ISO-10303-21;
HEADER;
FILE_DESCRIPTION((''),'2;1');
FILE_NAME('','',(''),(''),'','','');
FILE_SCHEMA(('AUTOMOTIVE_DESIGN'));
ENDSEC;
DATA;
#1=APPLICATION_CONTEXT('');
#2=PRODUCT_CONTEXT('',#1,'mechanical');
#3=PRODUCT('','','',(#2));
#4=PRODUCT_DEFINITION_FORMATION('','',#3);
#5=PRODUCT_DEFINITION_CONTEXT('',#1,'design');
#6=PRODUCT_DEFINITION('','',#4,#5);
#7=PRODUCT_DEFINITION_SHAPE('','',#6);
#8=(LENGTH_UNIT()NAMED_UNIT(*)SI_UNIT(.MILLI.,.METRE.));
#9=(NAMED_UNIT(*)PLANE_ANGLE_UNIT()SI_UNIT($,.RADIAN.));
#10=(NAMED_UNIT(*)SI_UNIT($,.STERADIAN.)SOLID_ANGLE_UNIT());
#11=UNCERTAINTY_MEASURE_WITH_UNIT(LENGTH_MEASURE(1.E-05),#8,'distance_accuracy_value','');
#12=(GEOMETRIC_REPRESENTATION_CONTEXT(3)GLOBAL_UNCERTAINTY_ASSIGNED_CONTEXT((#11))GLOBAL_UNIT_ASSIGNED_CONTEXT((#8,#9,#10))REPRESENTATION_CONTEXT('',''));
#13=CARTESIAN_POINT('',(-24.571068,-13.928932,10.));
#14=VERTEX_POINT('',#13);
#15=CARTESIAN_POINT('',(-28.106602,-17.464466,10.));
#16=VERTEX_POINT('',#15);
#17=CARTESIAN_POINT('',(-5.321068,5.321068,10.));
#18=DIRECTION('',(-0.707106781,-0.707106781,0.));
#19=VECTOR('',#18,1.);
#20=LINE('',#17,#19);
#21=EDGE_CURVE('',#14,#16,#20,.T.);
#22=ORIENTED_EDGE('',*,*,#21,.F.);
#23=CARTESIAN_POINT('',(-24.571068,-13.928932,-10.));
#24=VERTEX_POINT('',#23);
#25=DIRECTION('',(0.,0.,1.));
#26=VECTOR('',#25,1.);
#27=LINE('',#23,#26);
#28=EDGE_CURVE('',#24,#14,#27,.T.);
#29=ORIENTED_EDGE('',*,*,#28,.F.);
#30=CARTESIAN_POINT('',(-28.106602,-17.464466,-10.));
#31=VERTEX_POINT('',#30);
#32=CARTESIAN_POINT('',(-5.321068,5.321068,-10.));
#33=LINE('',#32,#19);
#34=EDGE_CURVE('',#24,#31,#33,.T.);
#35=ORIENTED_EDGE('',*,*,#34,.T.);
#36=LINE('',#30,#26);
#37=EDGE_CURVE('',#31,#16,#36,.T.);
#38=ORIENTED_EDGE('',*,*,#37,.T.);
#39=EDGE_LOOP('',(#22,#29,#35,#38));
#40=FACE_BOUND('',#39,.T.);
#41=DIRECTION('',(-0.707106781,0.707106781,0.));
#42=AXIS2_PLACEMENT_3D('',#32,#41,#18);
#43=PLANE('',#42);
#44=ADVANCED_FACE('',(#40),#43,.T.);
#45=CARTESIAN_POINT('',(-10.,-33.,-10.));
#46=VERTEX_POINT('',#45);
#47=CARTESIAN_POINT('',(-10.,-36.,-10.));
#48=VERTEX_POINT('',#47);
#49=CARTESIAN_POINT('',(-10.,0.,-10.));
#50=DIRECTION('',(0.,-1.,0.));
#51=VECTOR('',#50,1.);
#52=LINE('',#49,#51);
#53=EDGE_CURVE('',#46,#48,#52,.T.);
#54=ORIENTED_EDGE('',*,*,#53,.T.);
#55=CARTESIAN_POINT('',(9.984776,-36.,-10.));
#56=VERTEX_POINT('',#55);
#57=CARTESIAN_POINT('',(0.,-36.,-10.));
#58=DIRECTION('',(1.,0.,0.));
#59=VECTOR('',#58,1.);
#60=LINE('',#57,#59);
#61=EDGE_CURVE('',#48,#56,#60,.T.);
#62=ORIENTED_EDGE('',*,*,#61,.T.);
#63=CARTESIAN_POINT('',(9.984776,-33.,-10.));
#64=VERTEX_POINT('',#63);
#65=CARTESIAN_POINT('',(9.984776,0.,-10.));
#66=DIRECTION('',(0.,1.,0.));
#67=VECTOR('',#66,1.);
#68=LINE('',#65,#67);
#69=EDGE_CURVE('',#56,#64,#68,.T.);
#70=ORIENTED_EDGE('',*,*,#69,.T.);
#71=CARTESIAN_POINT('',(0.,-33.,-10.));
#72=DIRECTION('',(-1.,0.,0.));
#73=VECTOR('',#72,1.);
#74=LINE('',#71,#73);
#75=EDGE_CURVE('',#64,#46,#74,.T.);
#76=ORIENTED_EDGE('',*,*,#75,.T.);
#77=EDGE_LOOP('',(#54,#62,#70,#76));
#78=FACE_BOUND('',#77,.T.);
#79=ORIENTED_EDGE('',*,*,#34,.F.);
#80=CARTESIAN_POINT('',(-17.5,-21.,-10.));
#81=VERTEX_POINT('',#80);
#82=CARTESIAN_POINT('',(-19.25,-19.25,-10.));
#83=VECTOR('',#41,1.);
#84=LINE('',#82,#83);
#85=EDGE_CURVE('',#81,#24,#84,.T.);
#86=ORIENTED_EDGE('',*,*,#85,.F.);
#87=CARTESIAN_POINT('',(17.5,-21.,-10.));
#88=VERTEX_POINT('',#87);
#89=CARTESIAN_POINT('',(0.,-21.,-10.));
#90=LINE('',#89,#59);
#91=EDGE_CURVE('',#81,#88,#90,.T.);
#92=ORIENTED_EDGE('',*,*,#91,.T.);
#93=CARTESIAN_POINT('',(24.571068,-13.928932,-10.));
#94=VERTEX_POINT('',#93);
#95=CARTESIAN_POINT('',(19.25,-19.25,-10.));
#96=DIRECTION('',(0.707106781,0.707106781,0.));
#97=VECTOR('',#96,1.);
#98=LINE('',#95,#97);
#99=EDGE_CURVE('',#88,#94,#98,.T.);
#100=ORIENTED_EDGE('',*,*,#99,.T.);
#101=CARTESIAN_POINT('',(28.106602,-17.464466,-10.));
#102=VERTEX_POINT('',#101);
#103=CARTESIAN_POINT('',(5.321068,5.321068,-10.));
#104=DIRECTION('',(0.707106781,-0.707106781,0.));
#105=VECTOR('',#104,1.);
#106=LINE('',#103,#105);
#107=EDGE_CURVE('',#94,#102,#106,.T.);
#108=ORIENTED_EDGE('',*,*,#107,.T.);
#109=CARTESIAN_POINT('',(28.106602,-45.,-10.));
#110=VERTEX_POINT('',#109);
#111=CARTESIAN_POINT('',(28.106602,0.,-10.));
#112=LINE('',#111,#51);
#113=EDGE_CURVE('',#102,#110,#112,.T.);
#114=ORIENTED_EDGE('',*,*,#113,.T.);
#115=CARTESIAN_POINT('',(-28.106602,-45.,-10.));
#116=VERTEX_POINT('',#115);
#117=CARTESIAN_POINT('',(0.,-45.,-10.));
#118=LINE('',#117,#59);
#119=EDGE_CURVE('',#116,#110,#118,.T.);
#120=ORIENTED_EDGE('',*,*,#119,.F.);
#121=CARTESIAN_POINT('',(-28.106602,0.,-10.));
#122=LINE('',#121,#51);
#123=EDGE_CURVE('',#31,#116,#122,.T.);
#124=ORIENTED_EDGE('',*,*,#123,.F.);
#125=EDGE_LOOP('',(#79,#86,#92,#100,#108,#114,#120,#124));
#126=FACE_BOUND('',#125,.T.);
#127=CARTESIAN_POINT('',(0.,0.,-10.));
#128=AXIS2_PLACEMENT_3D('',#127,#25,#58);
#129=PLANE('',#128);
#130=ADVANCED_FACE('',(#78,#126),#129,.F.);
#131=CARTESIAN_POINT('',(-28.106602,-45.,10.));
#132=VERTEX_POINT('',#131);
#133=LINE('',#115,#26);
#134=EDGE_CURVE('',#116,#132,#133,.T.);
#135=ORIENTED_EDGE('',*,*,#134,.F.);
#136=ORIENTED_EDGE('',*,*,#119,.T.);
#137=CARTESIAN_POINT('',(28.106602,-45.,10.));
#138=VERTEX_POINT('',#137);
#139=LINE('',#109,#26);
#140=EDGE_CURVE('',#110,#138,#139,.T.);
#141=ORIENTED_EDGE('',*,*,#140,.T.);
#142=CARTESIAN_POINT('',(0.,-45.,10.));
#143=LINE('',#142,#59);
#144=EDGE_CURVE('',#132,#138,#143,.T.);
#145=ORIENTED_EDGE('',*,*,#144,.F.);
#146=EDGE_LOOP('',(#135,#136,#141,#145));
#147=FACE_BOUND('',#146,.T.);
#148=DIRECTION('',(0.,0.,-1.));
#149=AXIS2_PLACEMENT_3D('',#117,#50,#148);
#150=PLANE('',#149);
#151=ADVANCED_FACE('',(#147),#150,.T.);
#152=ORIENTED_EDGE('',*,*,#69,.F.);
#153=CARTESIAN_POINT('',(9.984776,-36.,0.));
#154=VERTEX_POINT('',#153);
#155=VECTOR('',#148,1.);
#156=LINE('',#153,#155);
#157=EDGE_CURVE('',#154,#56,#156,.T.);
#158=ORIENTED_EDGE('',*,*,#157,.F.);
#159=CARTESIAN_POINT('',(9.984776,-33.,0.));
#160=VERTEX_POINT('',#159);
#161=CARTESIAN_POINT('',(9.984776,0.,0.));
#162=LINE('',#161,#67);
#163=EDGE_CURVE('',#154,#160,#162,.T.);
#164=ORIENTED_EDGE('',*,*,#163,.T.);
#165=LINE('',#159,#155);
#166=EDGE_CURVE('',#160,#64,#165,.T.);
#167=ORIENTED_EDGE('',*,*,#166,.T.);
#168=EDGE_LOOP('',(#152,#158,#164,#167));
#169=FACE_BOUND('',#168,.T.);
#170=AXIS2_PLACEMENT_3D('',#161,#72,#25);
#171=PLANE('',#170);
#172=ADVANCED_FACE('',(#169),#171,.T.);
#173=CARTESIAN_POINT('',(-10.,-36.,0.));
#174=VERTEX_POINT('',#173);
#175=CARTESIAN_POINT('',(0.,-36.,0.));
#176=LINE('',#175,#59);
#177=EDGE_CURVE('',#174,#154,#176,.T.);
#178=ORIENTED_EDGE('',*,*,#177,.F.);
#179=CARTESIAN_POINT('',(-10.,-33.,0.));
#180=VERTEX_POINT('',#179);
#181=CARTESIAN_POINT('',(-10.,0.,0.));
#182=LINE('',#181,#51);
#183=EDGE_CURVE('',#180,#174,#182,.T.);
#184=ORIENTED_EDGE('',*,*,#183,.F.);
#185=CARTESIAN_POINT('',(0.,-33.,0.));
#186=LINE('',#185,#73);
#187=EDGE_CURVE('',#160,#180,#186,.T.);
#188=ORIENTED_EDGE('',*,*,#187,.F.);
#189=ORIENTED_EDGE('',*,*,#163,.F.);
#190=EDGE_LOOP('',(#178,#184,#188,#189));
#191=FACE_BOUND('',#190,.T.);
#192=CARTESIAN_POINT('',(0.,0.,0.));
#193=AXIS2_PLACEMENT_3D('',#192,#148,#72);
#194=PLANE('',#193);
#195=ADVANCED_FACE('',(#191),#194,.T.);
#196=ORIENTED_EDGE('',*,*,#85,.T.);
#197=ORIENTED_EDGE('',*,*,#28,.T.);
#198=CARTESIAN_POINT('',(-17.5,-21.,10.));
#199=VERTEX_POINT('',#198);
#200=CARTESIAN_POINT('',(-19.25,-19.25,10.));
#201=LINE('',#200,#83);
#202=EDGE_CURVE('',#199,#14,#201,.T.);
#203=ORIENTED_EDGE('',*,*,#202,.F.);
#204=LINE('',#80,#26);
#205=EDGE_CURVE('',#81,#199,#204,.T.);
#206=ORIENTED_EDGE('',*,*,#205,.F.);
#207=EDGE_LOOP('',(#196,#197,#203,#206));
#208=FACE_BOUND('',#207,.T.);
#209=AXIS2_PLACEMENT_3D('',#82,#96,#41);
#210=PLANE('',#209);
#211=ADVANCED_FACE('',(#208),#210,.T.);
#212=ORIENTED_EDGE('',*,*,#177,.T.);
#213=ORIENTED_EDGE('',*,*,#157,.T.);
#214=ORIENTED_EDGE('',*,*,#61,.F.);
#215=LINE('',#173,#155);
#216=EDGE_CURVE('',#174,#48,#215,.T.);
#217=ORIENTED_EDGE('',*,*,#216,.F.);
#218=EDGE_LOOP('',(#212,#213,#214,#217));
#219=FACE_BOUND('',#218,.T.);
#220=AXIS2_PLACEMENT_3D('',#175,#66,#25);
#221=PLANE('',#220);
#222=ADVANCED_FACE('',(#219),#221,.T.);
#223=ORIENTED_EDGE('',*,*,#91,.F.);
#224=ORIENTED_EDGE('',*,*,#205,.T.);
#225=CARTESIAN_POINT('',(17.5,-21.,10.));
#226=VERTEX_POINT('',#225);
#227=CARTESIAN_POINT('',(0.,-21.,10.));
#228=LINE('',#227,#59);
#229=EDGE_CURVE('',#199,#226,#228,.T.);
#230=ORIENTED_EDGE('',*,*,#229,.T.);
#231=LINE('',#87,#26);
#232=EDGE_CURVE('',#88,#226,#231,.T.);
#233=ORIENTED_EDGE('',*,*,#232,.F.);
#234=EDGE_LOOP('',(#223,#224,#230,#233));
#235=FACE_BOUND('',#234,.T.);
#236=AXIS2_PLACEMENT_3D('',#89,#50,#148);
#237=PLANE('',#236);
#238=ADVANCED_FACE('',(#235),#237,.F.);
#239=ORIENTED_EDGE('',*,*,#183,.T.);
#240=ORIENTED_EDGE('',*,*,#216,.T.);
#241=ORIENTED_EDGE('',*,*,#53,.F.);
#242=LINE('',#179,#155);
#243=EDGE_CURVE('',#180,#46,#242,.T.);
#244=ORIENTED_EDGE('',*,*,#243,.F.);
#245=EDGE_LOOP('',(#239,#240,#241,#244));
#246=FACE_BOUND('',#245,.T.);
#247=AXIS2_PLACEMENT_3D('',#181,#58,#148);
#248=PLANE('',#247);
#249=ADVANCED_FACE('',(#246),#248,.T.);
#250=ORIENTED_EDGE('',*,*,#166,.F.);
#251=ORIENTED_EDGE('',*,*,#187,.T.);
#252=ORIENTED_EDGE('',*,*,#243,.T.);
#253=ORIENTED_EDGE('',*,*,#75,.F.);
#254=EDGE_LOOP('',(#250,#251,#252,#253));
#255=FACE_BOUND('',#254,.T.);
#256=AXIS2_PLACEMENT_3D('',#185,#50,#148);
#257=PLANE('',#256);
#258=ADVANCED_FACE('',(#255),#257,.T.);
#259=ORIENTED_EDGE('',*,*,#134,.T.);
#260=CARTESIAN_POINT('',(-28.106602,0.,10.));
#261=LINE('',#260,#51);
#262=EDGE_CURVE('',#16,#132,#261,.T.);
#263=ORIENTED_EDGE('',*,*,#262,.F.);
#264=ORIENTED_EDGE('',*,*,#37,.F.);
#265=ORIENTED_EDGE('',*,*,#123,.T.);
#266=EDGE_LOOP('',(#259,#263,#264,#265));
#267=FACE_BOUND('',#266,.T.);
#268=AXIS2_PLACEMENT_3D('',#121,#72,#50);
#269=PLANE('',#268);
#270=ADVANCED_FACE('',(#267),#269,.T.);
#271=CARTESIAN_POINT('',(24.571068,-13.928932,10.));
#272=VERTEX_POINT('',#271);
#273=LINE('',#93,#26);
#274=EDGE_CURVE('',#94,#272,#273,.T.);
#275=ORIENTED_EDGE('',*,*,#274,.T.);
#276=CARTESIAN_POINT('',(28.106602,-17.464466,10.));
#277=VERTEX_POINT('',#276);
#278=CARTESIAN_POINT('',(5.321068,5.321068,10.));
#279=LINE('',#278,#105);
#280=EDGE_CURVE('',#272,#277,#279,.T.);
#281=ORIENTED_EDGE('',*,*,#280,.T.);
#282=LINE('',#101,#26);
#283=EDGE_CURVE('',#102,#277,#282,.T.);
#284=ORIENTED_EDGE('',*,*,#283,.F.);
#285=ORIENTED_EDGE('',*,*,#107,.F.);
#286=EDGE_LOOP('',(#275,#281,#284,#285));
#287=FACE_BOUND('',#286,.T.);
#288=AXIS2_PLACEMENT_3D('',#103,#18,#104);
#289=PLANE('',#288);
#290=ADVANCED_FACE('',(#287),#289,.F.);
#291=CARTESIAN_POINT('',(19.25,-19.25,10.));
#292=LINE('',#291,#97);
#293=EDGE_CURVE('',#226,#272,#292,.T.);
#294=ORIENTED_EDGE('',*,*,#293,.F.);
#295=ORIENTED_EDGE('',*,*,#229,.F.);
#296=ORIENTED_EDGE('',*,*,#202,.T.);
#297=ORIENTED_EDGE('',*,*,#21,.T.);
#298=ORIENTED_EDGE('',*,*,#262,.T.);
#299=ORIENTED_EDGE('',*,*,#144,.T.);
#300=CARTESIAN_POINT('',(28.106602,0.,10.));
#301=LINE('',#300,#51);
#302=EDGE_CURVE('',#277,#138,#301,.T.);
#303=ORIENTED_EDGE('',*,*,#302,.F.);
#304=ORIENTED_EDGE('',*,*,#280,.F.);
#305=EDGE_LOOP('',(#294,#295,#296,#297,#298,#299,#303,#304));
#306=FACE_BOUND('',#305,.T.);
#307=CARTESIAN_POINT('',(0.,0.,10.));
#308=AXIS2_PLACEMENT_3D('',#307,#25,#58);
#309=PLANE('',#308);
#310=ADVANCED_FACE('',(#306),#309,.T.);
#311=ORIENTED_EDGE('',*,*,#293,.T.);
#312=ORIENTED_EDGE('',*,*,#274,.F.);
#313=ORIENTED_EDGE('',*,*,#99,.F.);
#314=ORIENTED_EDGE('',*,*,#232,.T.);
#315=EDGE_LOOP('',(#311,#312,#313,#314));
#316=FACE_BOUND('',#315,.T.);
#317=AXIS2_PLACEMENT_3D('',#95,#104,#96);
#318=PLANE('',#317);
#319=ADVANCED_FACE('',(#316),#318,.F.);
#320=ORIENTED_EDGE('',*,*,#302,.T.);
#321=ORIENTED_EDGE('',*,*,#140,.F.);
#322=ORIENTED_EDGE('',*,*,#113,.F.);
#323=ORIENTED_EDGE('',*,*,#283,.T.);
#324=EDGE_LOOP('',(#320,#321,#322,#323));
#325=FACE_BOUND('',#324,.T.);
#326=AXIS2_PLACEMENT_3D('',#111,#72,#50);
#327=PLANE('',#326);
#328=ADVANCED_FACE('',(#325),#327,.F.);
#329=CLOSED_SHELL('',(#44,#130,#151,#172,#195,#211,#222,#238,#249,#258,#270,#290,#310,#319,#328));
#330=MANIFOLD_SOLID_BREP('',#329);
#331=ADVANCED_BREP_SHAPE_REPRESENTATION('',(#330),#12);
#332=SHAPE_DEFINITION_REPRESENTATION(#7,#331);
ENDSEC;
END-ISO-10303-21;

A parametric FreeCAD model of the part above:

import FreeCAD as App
import Part
import Sketcher
from FreeCAD import Vector
Q = App.Units.Quantity

doc = App.newDocument("Part")
body = doc.addObject("PartDesign::Body", "Body")

sketch1 = body.newObject("Sketcher::SketchObject", "Sketch")
sketch1.AttachmentSupport = (doc.getObject("XY_Plane"), [""])
sketch1.MapMode = "FlatFace"
sketch1.addGeometry(Part.LineSegment(Vector(18, -21, 0), Vector(-18, -21, 0)), False)
sketch1.addGeometry(Part.LineSegment(Vector(-18, -21, 0), Vector(-25, -14, 0)), False)
sketch1.addGeometry(Part.LineSegment(Vector(-25, -14, 0), Vector(-28, -17, 0)), False)
sketch1.addGeometry(Part.LineSegment(Vector(-28, -17, 0), Vector(-28, -45, 0)), False)
sketch1.addGeometry(Part.LineSegment(Vector(-28, -45, 0), Vector(28, -45, 0)), False)
sketch1.addGeometry(Part.LineSegment(Vector(28, -45, 0), Vector(28, -17, 0)), False)
sketch1.addGeometry(Part.LineSegment(Vector(28, -17, 0), Vector(25, -14, 0)), False)
sketch1.addGeometry(Part.LineSegment(Vector(25, -14, 0), Vector(18, -21, 0)), False)
sketch1.addConstraint(Sketcher.Constraint("Coincident", 0, 2, 1, 1))
sketch1.addConstraint(Sketcher.Constraint("Coincident", 1, 2, 2, 1))
sketch1.addConstraint(Sketcher.Constraint("Coincident", 2, 2, 3, 1))
sketch1.addConstraint(Sketcher.Constraint("Coincident", 3, 2, 4, 1))
sketch1.addConstraint(Sketcher.Constraint("Coincident", 4, 2, 5, 1))
sketch1.addConstraint(Sketcher.Constraint("Coincident", 5, 2, 6, 1))
sketch1.addConstraint(Sketcher.Constraint("Coincident", 6, 2, 7, 1))
sketch1.addConstraint(Sketcher.Constraint("Coincident", 7, 2, 0, 1))
sketch1.addConstraint(Sketcher.Constraint("Horizontal", 0))
sketch1.addConstraint(Sketcher.Constraint("Vertical", 3))
sketch1.addConstraint(Sketcher.Constraint("Horizontal", 4))
sketch1.addConstraint(Sketcher.Constraint("Vertical", 5))
sketch1.addConstraint(Sketcher.Constraint("Symmetric", 2, 2, 5, 2, -2))
sketch1.addConstraint(Sketcher.Constraint("Symmetric", 1, 2, 6, 2, -2))
sketch1.addConstraint(Sketcher.Constraint("Perpendicular", 1, 2))
sketch1.addConstraint(Sketcher.Constraint("Perpendicular", 2, 6))
sketch1.addConstraint(Sketcher.Constraint("Perpendicular", 6, 7))
sketch1.addConstraint(Sketcher.Constraint("DistanceX", 0, 2, 0, 1, Q("35 mm")))
sketch1.addConstraint(Sketcher.Constraint("Distance", 1, Q("10 mm")))
sketch1.addConstraint(Sketcher.Constraint("Distance", 2, Q("5 mm")))
sketch1.addConstraint(Sketcher.Constraint("DistanceY", 0, 2, -1, 1, Q("21 mm")))
sketch1.addConstraint(Sketcher.Constraint("DistanceY", 3, 2, -1, 1, Q("45 mm")))
pad1 = body.newObject("PartDesign::Pad", "Pad")
pad1.Profile = sketch1
pad1.Type = "TwoLengths"
pad1.Length = 10
pad1.Length2 = 10

sketch2 = body.newObject("Sketcher::SketchObject", "Sketch001")
sketch2.AttachmentSupport = (doc.getObject("XY_Plane"), [""])
sketch2.MapMode = "FlatFace"
sketch2.AttachmentOffset = App.Placement(Vector(0, 0, -10), App.Rotation())
sketch2.addGeometry(Part.LineSegment(Vector(10, -33, 0), Vector(10, -36, 0)), False)
sketch2.addGeometry(Part.LineSegment(Vector(10, -36, 0), Vector(-10, -36, 0)), False)
sketch2.addGeometry(Part.LineSegment(Vector(-10, -36, 0), Vector(-10, -33, 0)), False)
sketch2.addGeometry(Part.LineSegment(Vector(-10, -33, 0), Vector(10, -33, 0)), False)
sketch2.addConstraint(Sketcher.Constraint("Coincident", 0, 2, 1, 1))
sketch2.addConstraint(Sketcher.Constraint("Coincident", 1, 2, 2, 1))
sketch2.addConstraint(Sketcher.Constraint("Coincident", 2, 2, 3, 1))
sketch2.addConstraint(Sketcher.Constraint("Coincident", 3, 2, 0, 1))
sketch2.addConstraint(Sketcher.Constraint("Vertical", 0))
sketch2.addConstraint(Sketcher.Constraint("Horizontal", 1))
sketch2.addConstraint(Sketcher.Constraint("Vertical", 2))
sketch2.addConstraint(Sketcher.Constraint("Horizontal", 3))
sketch2.addConstraint(Sketcher.Constraint("DistanceY", 0, 2, 0, 1, Q("3 mm")))
sketch2.addConstraint(Sketcher.Constraint("DistanceY", 0, 2, -1, 1, Q("36 mm")))
sketch2.addConstraint(Sketcher.Constraint("DistanceX", 1, 2, -1, 1, Q("10 mm")))
sketch2.addConstraint(Sketcher.Constraint("DistanceX", 1, 2, 1, 1, Q("19.984776 mm")))
pocket1 = body.newObject("PartDesign::Pocket", "Pocket")
pocket1.Profile = sketch2
pocket1.Length = 10
pocket1.Reversed = True

doc.recompute()
